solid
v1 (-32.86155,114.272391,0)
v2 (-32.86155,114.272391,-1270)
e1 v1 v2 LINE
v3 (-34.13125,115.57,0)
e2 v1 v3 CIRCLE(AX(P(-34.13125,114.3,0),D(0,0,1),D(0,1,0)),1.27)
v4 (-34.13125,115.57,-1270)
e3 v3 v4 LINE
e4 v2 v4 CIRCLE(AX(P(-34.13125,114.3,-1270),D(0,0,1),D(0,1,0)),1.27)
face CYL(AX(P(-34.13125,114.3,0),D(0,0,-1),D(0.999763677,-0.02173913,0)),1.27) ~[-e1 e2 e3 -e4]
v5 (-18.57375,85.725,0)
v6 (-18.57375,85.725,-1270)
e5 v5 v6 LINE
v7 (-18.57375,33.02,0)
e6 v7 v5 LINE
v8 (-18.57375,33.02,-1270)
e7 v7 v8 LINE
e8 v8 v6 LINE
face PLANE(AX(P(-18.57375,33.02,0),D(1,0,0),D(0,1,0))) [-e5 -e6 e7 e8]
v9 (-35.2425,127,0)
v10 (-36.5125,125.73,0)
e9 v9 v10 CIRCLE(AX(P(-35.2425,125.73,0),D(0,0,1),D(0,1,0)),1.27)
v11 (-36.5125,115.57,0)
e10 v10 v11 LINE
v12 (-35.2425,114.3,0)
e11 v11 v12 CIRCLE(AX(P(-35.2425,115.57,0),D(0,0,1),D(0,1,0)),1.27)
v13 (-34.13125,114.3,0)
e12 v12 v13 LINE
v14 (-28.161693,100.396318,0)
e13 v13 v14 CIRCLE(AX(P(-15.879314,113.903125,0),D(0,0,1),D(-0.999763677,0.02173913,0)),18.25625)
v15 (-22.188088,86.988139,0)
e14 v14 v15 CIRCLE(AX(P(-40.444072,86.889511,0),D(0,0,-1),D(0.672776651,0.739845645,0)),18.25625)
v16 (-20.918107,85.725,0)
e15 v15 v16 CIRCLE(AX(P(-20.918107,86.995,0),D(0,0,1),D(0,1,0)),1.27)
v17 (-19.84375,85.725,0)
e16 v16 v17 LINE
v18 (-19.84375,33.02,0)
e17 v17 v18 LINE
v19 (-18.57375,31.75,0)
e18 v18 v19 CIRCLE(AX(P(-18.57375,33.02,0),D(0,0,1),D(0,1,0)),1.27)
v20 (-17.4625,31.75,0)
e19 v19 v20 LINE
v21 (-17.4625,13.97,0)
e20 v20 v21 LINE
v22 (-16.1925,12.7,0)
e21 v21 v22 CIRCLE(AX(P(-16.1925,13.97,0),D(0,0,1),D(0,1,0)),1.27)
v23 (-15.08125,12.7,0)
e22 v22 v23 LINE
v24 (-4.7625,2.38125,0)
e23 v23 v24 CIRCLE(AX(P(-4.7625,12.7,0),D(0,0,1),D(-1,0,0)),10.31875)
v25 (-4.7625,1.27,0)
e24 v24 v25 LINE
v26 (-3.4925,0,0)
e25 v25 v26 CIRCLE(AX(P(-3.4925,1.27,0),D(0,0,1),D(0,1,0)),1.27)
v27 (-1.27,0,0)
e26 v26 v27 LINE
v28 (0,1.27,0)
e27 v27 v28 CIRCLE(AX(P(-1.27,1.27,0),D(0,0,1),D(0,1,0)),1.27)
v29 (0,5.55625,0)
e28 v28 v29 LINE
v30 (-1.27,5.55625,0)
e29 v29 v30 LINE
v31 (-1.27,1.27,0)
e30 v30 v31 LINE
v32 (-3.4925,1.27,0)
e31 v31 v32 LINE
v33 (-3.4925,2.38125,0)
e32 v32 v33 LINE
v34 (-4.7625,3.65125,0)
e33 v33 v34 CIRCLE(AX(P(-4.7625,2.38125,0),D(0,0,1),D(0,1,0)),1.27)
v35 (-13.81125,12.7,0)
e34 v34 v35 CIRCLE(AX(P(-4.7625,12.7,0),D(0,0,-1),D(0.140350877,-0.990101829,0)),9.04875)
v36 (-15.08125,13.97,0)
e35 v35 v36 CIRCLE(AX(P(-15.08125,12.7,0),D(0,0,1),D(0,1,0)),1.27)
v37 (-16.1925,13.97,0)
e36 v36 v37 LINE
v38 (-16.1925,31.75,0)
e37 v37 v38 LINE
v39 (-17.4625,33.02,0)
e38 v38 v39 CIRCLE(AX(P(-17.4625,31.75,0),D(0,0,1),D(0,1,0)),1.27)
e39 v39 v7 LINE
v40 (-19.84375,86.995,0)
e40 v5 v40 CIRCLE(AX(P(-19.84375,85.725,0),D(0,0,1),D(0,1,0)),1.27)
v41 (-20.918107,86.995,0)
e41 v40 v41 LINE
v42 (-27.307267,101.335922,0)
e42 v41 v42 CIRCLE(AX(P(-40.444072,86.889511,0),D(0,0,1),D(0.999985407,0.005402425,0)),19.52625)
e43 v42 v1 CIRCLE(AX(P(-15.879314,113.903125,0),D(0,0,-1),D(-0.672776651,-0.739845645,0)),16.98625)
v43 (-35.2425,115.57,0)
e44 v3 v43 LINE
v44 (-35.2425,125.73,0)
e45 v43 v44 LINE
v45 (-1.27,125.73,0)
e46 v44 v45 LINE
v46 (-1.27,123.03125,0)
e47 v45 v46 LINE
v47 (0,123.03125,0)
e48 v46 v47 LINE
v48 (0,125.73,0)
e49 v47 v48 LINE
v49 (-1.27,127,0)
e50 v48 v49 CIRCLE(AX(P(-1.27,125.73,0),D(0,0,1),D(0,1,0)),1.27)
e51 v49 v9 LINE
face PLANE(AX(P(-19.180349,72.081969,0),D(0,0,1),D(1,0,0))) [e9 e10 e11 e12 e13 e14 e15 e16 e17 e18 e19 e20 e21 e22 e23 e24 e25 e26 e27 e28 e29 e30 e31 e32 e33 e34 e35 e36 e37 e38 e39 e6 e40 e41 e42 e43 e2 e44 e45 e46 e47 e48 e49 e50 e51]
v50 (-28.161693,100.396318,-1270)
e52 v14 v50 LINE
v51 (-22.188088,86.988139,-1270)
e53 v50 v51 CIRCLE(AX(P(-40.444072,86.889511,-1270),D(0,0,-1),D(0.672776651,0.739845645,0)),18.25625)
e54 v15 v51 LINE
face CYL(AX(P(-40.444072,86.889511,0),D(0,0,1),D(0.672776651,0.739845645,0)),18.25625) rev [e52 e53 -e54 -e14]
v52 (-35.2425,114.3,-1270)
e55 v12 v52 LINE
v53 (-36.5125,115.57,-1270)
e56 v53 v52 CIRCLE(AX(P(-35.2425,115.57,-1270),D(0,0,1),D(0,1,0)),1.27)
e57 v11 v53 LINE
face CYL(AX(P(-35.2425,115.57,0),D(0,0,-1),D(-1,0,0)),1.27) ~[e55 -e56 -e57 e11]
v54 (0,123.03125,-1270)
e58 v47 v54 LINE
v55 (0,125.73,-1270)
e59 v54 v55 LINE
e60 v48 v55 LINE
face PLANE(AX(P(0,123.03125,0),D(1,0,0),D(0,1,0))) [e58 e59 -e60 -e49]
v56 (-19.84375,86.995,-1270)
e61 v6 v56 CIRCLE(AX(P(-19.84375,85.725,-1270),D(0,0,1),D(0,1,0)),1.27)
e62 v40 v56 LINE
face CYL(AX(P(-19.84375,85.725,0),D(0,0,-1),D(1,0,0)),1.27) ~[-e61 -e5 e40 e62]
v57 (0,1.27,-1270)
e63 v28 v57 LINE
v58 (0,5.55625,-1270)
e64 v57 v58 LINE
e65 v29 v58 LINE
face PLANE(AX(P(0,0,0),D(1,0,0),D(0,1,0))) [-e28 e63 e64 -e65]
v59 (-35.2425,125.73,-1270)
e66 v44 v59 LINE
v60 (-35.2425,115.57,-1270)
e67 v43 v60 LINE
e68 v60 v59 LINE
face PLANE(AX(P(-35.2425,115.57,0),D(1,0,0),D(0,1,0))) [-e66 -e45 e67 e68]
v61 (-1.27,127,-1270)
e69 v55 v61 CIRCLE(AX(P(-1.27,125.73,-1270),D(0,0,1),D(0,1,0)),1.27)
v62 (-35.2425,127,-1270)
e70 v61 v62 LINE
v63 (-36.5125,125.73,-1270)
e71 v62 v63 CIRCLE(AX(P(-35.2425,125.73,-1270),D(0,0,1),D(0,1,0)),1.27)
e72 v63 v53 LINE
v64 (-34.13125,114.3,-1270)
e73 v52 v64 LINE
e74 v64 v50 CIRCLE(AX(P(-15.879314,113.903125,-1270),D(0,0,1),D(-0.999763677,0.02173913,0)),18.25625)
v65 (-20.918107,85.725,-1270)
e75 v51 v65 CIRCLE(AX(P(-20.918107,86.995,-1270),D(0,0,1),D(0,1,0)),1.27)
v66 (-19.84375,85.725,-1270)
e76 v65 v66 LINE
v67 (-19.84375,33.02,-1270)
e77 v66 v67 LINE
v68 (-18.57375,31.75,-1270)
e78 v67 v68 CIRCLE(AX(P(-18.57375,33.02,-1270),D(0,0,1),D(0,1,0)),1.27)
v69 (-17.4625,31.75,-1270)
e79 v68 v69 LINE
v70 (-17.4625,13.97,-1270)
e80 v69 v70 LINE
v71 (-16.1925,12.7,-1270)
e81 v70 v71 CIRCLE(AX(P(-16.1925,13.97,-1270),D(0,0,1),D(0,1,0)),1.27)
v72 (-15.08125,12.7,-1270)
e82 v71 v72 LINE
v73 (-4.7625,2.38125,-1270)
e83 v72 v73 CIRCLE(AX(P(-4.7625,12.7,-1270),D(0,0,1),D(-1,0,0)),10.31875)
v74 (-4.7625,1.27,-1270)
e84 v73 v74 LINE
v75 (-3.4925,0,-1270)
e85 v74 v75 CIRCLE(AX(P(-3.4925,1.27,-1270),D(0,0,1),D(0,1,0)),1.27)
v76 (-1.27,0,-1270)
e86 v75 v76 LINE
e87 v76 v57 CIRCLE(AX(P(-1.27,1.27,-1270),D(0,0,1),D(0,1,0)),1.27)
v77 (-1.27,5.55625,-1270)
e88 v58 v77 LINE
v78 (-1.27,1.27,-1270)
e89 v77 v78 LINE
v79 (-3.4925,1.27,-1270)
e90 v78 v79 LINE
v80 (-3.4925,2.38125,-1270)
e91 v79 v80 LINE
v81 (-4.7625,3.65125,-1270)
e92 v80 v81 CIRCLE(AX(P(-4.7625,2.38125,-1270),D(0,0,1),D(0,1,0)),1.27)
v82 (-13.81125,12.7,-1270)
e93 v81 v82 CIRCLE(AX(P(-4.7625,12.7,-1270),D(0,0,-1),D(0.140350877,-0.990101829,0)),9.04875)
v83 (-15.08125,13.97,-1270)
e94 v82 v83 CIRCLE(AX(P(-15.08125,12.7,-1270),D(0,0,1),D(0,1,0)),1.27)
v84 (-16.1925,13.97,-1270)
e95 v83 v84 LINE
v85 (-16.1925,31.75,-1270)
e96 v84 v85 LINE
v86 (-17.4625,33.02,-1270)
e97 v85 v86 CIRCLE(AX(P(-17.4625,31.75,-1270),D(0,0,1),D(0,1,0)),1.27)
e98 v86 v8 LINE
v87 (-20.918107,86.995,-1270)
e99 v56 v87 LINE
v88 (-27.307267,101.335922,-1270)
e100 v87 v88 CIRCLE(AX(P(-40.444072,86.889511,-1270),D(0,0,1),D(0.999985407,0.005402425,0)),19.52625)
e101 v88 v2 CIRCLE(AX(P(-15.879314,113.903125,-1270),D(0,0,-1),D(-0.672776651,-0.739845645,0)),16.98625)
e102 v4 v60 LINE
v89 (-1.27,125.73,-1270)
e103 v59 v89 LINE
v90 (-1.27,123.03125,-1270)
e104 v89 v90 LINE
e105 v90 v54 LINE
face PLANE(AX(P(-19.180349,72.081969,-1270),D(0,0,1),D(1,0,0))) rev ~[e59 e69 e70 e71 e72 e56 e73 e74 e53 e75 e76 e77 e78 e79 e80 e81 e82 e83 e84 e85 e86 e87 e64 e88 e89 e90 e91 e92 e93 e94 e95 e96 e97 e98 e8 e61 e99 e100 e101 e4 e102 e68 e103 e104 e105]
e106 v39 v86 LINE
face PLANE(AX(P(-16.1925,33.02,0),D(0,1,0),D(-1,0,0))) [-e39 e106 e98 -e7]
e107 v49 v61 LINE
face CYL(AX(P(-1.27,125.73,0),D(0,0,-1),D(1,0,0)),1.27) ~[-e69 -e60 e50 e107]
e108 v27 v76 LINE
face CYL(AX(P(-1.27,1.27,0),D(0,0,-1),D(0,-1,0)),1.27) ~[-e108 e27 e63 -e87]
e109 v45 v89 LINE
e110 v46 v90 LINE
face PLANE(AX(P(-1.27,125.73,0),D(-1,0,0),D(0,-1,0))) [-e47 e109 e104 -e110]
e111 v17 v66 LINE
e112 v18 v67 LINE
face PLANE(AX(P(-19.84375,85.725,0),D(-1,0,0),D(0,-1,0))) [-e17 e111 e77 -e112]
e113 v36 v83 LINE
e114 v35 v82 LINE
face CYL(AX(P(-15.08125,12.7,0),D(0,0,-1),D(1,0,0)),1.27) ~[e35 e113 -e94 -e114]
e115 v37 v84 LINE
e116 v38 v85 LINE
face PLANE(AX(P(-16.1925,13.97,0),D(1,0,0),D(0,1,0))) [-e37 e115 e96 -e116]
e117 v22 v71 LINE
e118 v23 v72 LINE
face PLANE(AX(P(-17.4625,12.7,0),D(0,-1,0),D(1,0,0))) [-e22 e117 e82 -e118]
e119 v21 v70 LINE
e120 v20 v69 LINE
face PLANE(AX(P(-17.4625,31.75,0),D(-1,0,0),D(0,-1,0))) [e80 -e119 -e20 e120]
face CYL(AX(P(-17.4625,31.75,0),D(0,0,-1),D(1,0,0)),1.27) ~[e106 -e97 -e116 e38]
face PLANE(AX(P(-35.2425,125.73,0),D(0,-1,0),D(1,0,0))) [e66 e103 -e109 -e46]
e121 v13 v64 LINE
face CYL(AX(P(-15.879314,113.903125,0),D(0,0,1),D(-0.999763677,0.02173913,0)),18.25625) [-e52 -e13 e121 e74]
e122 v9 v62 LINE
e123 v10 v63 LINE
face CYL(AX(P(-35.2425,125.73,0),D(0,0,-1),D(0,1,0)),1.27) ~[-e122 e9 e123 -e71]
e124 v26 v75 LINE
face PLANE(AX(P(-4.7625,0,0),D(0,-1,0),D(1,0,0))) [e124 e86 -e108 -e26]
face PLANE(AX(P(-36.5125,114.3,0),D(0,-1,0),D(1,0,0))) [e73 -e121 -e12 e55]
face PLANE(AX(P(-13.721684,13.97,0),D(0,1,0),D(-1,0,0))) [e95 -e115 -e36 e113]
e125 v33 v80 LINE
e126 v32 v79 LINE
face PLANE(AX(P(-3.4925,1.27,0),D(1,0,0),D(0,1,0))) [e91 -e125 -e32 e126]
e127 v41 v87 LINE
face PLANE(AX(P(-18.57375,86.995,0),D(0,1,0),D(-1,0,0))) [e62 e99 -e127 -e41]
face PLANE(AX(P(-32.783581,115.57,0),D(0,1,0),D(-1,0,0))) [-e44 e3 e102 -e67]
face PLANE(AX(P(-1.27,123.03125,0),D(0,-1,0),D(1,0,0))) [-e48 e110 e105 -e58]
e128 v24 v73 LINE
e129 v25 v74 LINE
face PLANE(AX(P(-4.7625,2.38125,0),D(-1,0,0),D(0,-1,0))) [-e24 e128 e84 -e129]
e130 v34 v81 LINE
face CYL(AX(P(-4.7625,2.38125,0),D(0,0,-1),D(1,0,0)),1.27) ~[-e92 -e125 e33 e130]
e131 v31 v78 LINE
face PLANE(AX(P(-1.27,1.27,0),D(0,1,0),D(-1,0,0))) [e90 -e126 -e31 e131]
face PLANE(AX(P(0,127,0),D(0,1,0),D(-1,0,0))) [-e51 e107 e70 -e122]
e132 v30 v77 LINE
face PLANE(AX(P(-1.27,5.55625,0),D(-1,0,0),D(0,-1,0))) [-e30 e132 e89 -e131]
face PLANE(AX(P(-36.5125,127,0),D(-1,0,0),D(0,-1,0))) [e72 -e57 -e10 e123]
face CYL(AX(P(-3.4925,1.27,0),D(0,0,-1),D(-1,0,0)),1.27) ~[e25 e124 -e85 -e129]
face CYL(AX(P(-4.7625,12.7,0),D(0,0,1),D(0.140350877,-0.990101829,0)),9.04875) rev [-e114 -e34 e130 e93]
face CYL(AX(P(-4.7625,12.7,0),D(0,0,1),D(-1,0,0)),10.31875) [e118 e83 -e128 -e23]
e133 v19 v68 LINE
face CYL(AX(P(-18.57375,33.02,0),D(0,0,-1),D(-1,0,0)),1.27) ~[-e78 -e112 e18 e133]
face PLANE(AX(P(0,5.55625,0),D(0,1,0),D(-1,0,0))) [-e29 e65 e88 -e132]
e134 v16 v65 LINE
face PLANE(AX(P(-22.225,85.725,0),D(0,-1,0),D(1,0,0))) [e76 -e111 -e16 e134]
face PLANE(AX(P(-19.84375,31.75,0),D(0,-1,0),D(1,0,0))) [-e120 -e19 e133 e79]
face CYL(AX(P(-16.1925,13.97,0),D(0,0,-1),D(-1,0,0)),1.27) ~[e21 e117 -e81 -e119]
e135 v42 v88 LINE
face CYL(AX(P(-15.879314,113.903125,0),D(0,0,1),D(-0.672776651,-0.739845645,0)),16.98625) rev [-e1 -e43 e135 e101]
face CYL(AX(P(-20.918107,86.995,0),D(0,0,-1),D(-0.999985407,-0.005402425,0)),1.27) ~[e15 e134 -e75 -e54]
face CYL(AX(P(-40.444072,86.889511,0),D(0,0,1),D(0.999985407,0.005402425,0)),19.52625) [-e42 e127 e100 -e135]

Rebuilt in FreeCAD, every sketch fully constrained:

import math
import FreeCAD as App
import Part
import Sketcher
from FreeCAD import Vector
Q = App.Units.Quantity


def edges_at(feature, points):
    """Names of the edges that pass closest to the given points."""
    edges = feature.Shape.Edges
    near = lambda p: min(range(len(edges)), key=lambda i: edges[i].distToShape(Part.Vertex(*p))[0])
    return sorted({f"Edge{near(p) + 1}" for p in points})

doc = App.newDocument("Part")
body = doc.addObject("PartDesign::Body", "Body")

# Sketch on XY plane
sketch1 = body.newObject("Sketcher::SketchObject", "Sketch")
sketch1.AttachmentSupport = (doc.getObject("XY_Plane"), [""])
sketch1.MapMode = "FlatFace"
sketch1.addGeometry(Part.LineSegment(Vector(0, 123, 0), Vector(0, 127, 0)), False)
sketch1.addGeometry(Part.LineSegment(Vector(0, 127, 0), Vector(-36.5, 127, 0)), False)
sketch1.addGeometry(Part.LineSegment(Vector(-36.5, 127, 0), Vector(-36.5, 114.3, 0)), False)
sketch1.addGeometry(Part.LineSegment(Vector(-36.5, 114.3, 0), Vector(-34.1, 114.3, 0)), False)
sketch1.addGeometry(Part.ArcOfCircle(Part.Circle(Vector(-15.9, 113.9, 0), Vector(0, 0, 1), 18.3), math.radians(179), math.radians(228)), False)
sketch1.addGeometry(Part.ArcOfCircle(Part.Circle(Vector(-40.4, 86.9, 0), Vector(0, 0, 1), 18.3), math.radians(-4), math.radians(48)), False)
sketch1.addGeometry(Part.LineSegment(Vector(-22.2, 85.7, 0), Vector(-19.8, 85.7, 0)), False)
sketch1.addGeometry(Part.LineSegment(Vector(-19.8, 85.7, 0), Vector(-19.8, 31.8, 0)), False)
sketch1.addGeometry(Part.LineSegment(Vector(-19.8, 31.8, 0), Vector(-17.5, 31.8, 0)), False)
sketch1.addGeometry(Part.LineSegment(Vector(-17.5, 31.8, 0), Vector(-17.5, 12.7, 0)), False)
sketch1.addGeometry(Part.LineSegment(Vector(-17.5, 12.7, 0), Vector(-15.1, 12.7, 0)), False)
sketch1.addGeometry(Part.ArcOfCircle(Part.Circle(Vector(-4.8, 12.7, 0), Vector(0, 0, 1), 10.3), math.radians(-180), math.radians(-90)), False)
sketch1.addGeometry(Part.LineSegment(Vector(-4.8, 2.4, 0), Vector(-4.8, 0, 0)), False)
sketch1.addGeometry(Part.LineSegment(Vector(-4.8, 0, 0), Vector(0, 0, 0)), False)
sketch1.addGeometry(Part.LineSegment(Vector(0, 0, 0), Vector(0, 5.6, 0)), False)
sketch1.addGeometry(Part.LineSegment(Vector(0, 5.6, 0), Vector(-1.3, 5.6, 0)), False)
sketch1.addGeometry(Part.LineSegment(Vector(-1.3, 5.6, 0), Vector(-1.3, 1.3, 0)), False)
sketch1.addGeometry(Part.LineSegment(Vector(-1.3, 1.3, 0), Vector(-3.5, 1.3, 0)), False)
sketch1.addGeometry(Part.LineSegment(Vector(-3.5, 1.3, 0), Vector(-3.5, 3.7, 0)), False)
sketch1.addGeometry(Part.ArcOfCircle(Part.Circle(Vector(-4.8, 12.7, 0), Vector(0, 0, 1), 9), math.radians(172), math.radians(278)), False)
sketch1.addGeometry(Part.LineSegment(Vector(-13.7, 14, 0), Vector(-16.2, 14, 0)), False)
sketch1.addGeometry(Part.LineSegment(Vector(-16.2, 14, 0), Vector(-16.2, 33, 0)), False)
sketch1.addGeometry(Part.LineSegment(Vector(-16.2, 33, 0), Vector(-18.6, 33, 0)), False)
sketch1.addGeometry(Part.LineSegment(Vector(-18.6, 33, 0), Vector(-18.6, 87, 0)), False)
sketch1.addGeometry(Part.LineSegment(Vector(-18.6, 87, 0), Vector(-20.9, 87, 0)), False)
sketch1.addGeometry(Part.ArcOfCircle(Part.Circle(Vector(-40.4, 86.9, 0), Vector(0, 0, 1), 19.5), math.radians(0), math.radians(48)), False)
sketch1.addGeometry(Part.ArcOfCircle(Part.Circle(Vector(-15.9, 113.9, 0), Vector(0, 0, 1), 17), math.radians(174), math.radians(228)), False)
sketch1.addGeometry(Part.LineSegment(Vector(-32.8, 115.6, 0), Vector(-35.2, 115.6, 0)), False)
sketch1.addGeometry(Part.LineSegment(Vector(-35.2, 115.6, 0), Vector(-35.2, 125.7, 0)), False)
sketch1.addGeometry(Part.LineSegment(Vector(-35.2, 125.7, 0), Vector(-1.3, 125.7, 0)), False)
sketch1.addGeometry(Part.LineSegment(Vector(-1.3, 125.7, 0), Vector(-1.3, 123, 0)), False)
sketch1.addGeometry(Part.LineSegment(Vector(-1.3, 123, 0), Vector(0, 123, 0)), False)
sketch1.addConstraint(Sketcher.Constraint("Coincident", 0, 2, 1, 1))
sketch1.addConstraint(Sketcher.Constraint("Coincident", 1, 2, 2, 1))
sketch1.addConstraint(Sketcher.Constraint("Coincident", 2, 2, 3, 1))
sketch1.addConstraint(Sketcher.Constraint("Coincident", 3, 2, 4, 1))
sketch1.addConstraint(Sketcher.Constraint("Tangent", 4, 2, 5, 2))
sketch1.addConstraint(Sketcher.Constraint("Coincident", 5, 1, 6, 1))
sketch1.addConstraint(Sketcher.Constraint("Coincident", 6, 2, 7, 1))
sketch1.addConstraint(Sketcher.Constraint("Coincident", 7, 2, 8, 1))
sketch1.addConstraint(Sketcher.Constraint("Coincident", 8, 2, 9, 1))
sketch1.addConstraint(Sketcher.Constraint("Coincident", 9, 2, 10, 1))
sketch1.addConstraint(Sketcher.Constraint("Coincident", 10, 2, 11, 1))
sketch1.addConstraint(Sketcher.Constraint("Coincident", 11, 2, 12, 1))
sketch1.addConstraint(Sketcher.Constraint("Coincident", 12, 2, 13, 1))
sketch1.addConstraint(Sketcher.Constraint("Coincident", 13, 2, 14, 1))
sketch1.addConstraint(Sketcher.Constraint("Coincident", 14, 2, 15, 1))
sketch1.addConstraint(Sketcher.Constraint("Coincident", 15, 2, 16, 1))
sketch1.addConstraint(Sketcher.Constraint("Coincident", 16, 2, 17, 1))
sketch1.addConstraint(Sketcher.Constraint("Coincident", 17, 2, 18, 1))
sketch1.addConstraint(Sketcher.Constraint("Coincident", 18, 2, 19, 2))
sketch1.addConstraint(Sketcher.Constraint("Coincident", 19, 1, 20, 1))
sketch1.addConstraint(Sketcher.Constraint("Coincident", 20, 2, 21, 1))
sketch1.addConstraint(Sketcher.Constraint("Coincident", 21, 2, 22, 1))
sketch1.addConstraint(Sketcher.Constraint("Coincident", 22, 2, 23, 1))
sketch1.addConstraint(Sketcher.Constraint("Coincident", 23, 2, 24, 1))
sketch1.addConstraint(Sketcher.Constraint("Coincident", 24, 2, 25, 1))
sketch1.addConstraint(Sketcher.Constraint("Tangent", 25, 2, 26, 2))
sketch1.addConstraint(Sketcher.Constraint("Coincident", 26, 1, 27, 1))
sketch1.addConstraint(Sketcher.Constraint("Coincident", 27, 2, 28, 1))
sketch1.addConstraint(Sketcher.Constraint("Coincident", 28, 2, 29, 1))
sketch1.addConstraint(Sketcher.Constraint("Coincident", 29, 2, 30, 1))
sketch1.addConstraint(Sketcher.Constraint("Coincident", 30, 2, 31, 1))
sketch1.addConstraint(Sketcher.Constraint("Coincident", 31, 2, 0, 1))
sketch1.addConstraint(Sketcher.Constraint("Vertical", 0))
sketch1.addConstraint(Sketcher.Constraint("Horizontal", 1))
sketch1.addConstraint(Sketcher.Constraint("Vertical", 2))
sketch1.addConstraint(Sketcher.Constraint("Horizontal", 3))
sketch1.addConstraint(Sketcher.Constraint("Horizontal", 6))
sketch1.addConstraint(Sketcher.Constraint("Vertical", 7))
sketch1.addConstraint(Sketcher.Constraint("Horizontal", 8))
sketch1.addConstraint(Sketcher.Constraint("Vertical", 9))
sketch1.addConstraint(Sketcher.Constraint("Horizontal", 10))
sketch1.addConstraint(Sketcher.Constraint("Vertical", 12))
sketch1.addConstraint(Sketcher.Constraint("Horizontal", 13))
sketch1.addConstraint(Sketcher.Constraint("Vertical", 14))
sketch1.addConstraint(Sketcher.Constraint("Horizontal", 15))
sketch1.addConstraint(Sketcher.Constraint("Vertical", 16))
sketch1.addConstraint(Sketcher.Constraint("Horizontal", 17))
sketch1.addConstraint(Sketcher.Constraint("Vertical", 18))
sketch1.addConstraint(Sketcher.Constraint("Horizontal", 20))
sketch1.addConstraint(Sketcher.Constraint("Vertical", 21))
sketch1.addConstraint(Sketcher.Constraint("Horizontal", 22))
sketch1.addConstraint(Sketcher.Constraint("Vertical", 23))
sketch1.addConstraint(Sketcher.Constraint("Horizontal", 24))
sketch1.addConstraint(Sketcher.Constraint("Horizontal", 27))
sketch1.addConstraint(Sketcher.Constraint("Vertical", 28))
sketch1.addConstraint(Sketcher.Constraint("Horizontal", 29))
sketch1.addConstraint(Sketcher.Constraint("Vertical", 30))
sketch1.addConstraint(Sketcher.Constraint("Horizontal", 31))
sketch1.addConstraint(Sketcher.Constraint("Coincident", 13, 2, -1, 1))
sketch1.addConstraint(Sketcher.Constraint("Coincident", 19, 3, 11, 3))
sketch1.addConstraint(Sketcher.Constraint("Coincident", 25, 3, 5, 3))
sketch1.addConstraint(Sketcher.Constraint("Coincident", 26, 3, 4, 3))
sketch1.addConstraint(Sketcher.Constraint("Equal", 4, 5))
sketch1.addConstraint(Sketcher.Constraint("PointOnObject", 0, 2, -2))
sketch1.addConstraint(Sketcher.Constraint("Horizontal", 19, 3, 9, 2))
sketch1.addConstraint(Sketcher.Constraint("Vertical", 19, 3, 11, 2))
sketch1.addConstraint(Sketcher.Constraint("Vertical", 16, 2, 29, 2))
sketch1.addConstraint(Sketcher.Constraint("Equal", 3, 6))
sketch1.addConstraint(Sketcher.Constraint("Equal", 6, 8))
sketch1.addConstraint(Sketcher.Constraint("Equal", 8, 10))
sketch1.addConstraint(Sketcher.Constraint("Equal", 10, 22))
sketch1.addConstraint(Sketcher.Constraint("Equal", 22, 12))
sketch1.addConstraint(Sketcher.Constraint("Equal", 20, 18))
sketch1.addConstraint(Sketcher.Constraint("Equal", 9, 21))
sketch1.addConstraint(Sketcher.Constraint("Equal", 7, 23))
sketch1.addConstraint(Sketcher.Constraint("DistanceY", 2, 2, 2, 1, Q("0.5 in")))
sketch1.addConstraint(Sketcher.Constraint("DistanceY", 28, 1, 28, 2, Q("0.4 in")))
sketch1.addConstraint(Sketcher.Constraint("DistanceY", -1, 1, 0, 2, Q("5 in")))
sketch1.addConstraint(Sketcher.Constraint("Radius", 4, Q("0.71875 in")))
sketch1.addConstraint(Sketcher.Constraint("Radius", 11, Q("0.40625 in")))
sketch1.addConstraint(Sketcher.Constraint("DistanceX", 15, 2, 15, 1, Q("0.05 in")))
sketch1.addConstraint(Sketcher.Constraint("DistanceY", 9, 2, 9, 1, Q("0.75 in")))
sketch1.addConstraint(Sketcher.Constraint("DistanceY", -1, 1, 11, 3, Q("0.5 in")))
sketch1.addConstraint(Sketcher.Constraint("DistanceY", -1, 1, 21, 2, Q("1.3 in")))
sketch1.addConstraint(Sketcher.Constraint("DistanceX", 1, 2, 1, 1, Q("1.4375 in")))
sketch1.addConstraint(Sketcher.Constraint("DistanceX", 13, 1, 13, 2, Q("0.1875 in")))
sketch1.addConstraint(Sketcher.Constraint("DistanceY", 0, 1, 0, 2, Q("0.15625 in")))
sketch1.addConstraint(Sketcher.Constraint("DistanceY", 7, 2, 7, 1, Q("2.125 in")))
sketch1.addConstraint(Sketcher.Constraint("DistanceY", 14, 1, 14, 2, Q("0.21875 in")))
sketch1.addConstraint(Sketcher.Constraint("DistanceY", -1, 1, 16, 2, Q("0.05 in")))
sketch1.addConstraint(Sketcher.Constraint("DistanceY", -1, 1, 26, 1, Q("4.55 in")))
sketch1.addConstraint(Sketcher.Constraint("DistanceX", 11, 2, 17, 2, Q("0.05 in")))
sketch1.addConstraint(Sketcher.Constraint("DistanceX", 2, 2, 27, 2, Q("0.05 in")))
sketch1.addConstraint(Sketcher.Constraint("DistanceY", -1, 1, 4, 3, Q("4.484375 in")))
sketch1.addConstraint(Sketcher.Constraint("Radius", 19, Q("9.04875 mm")))
sketch1.addConstraint(Sketcher.Constraint("Radius", 25, Q("19.52625 mm")))
pad1 = body.newObject("PartDesign::Pad", "Pad")
pad1.Profile = sketch1
pad1.Length = Q("50 in")
pad1.Reversed = True
doc.recompute()

fillet = body.newObject("PartDesign::Fillet", "Fillet")
fillet.Base = (pad1, edges_at(pad1, [
    (-32.784, 115.57, -635),
    (-18.574, 86.995, -635),
    (-16.192, 33.02, -635),
    (-13.722, 13.97, -635),
    (-3.493, 3.741, -635),
    (0, 0, -635),
    (-4.763, 0, -635),
    (-17.462, 12.7, -635),
    (-19.844, 31.75, -635),
    (-22.225, 85.725, -635),
    (-36.513, 114.3, -635),
    (-36.513, 127, -635),
    (0, 127, -635),
]))
fillet.Radius = Q("0.05 in")

doc.recompute()
